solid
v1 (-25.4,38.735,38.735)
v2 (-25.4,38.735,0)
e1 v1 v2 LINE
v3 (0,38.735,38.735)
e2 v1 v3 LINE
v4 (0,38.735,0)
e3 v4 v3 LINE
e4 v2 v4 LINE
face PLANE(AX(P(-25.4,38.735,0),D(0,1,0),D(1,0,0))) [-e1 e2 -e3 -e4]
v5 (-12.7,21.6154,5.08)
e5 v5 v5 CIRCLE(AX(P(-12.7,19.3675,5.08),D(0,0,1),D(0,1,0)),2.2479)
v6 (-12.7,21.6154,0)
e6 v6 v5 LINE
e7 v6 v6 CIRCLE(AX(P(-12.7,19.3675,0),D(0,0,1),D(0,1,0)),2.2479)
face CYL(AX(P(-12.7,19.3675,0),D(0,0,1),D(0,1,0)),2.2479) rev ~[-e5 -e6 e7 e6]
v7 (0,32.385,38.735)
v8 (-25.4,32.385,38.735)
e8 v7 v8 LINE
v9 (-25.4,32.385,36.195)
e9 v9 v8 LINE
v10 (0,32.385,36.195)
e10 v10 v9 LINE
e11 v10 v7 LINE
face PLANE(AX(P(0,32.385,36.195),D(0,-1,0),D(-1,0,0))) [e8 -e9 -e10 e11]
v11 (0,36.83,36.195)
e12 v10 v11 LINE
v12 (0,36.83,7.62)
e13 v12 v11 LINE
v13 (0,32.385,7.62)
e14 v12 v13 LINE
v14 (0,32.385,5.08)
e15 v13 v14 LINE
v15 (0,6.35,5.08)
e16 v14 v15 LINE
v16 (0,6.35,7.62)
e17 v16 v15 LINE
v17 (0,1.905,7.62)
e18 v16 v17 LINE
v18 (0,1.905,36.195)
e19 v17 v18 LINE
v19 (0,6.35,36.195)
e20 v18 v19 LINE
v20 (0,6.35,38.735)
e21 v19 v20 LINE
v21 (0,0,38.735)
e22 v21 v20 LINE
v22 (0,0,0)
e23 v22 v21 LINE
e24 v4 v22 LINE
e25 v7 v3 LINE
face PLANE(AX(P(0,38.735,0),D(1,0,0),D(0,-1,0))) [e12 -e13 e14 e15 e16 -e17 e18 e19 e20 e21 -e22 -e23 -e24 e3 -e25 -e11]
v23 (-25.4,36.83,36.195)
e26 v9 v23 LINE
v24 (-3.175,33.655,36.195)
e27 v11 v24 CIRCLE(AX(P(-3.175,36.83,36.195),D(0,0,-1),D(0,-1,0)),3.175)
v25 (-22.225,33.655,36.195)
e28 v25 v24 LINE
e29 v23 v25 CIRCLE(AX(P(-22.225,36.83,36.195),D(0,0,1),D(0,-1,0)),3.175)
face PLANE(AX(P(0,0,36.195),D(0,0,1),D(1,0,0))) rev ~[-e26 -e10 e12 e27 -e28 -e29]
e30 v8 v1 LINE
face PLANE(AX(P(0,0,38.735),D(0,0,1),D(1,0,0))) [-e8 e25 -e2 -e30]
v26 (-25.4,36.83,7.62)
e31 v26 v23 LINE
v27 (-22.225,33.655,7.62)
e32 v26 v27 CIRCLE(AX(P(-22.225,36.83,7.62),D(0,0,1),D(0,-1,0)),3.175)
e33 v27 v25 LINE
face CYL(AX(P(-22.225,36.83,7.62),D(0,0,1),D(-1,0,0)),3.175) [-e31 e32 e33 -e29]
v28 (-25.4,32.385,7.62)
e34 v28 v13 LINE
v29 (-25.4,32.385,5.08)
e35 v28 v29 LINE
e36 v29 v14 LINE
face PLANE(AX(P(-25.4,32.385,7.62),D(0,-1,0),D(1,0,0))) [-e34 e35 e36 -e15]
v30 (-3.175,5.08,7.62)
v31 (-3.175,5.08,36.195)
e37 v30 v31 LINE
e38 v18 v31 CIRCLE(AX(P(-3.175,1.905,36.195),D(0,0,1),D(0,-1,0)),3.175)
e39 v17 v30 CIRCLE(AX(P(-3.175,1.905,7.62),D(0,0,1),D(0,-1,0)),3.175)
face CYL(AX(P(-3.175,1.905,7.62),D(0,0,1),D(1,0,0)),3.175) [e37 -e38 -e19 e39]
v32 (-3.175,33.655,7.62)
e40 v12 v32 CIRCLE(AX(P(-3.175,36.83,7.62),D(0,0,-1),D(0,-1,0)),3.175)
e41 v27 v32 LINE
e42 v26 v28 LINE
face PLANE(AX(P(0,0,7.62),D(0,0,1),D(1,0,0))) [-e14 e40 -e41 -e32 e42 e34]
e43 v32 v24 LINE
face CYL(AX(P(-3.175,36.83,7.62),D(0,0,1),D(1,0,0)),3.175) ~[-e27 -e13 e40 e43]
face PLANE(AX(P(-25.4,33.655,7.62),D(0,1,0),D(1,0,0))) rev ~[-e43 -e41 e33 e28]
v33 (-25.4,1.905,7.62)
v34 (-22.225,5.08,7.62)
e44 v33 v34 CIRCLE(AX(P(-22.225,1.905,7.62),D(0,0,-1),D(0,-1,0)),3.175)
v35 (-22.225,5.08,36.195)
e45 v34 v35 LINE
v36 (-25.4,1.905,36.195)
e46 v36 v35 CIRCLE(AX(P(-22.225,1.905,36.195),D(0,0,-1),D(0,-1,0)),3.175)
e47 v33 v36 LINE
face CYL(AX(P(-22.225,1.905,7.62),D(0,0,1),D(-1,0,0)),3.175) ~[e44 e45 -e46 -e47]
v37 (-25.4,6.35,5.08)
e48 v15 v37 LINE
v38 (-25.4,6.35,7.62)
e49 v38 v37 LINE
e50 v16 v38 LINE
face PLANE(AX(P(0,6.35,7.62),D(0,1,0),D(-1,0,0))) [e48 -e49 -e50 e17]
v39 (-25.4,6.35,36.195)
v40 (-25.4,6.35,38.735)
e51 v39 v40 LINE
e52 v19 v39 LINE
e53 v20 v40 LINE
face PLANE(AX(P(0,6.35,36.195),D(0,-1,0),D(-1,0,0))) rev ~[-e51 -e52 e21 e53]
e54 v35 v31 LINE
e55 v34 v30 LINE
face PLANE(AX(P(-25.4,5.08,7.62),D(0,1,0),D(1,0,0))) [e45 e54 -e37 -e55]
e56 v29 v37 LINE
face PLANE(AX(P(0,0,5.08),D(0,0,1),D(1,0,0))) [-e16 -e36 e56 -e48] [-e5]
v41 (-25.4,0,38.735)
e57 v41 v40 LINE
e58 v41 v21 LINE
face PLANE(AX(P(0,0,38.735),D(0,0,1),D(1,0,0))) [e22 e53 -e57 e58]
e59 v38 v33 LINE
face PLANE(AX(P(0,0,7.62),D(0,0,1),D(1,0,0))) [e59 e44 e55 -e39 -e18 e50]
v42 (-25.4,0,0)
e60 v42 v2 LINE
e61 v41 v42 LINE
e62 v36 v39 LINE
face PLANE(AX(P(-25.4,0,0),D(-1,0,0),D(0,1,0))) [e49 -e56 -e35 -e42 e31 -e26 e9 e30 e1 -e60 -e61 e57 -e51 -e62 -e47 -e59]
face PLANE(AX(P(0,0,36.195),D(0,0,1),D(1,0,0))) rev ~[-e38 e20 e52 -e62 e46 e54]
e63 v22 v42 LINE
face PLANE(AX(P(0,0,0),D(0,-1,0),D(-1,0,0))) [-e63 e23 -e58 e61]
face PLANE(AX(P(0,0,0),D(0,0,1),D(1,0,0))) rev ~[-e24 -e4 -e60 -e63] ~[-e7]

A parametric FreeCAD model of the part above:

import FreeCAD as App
import Part
import Sketcher

V = App.Vector
Q = App.Units.Quantity


def edges_at(feature, points):
    """Names of the edges that pass closest to the given points."""
    edges = feature.Shape.Edges
    near = lambda p: min(range(len(edges)), key=lambda i: edges[i].distToShape(Part.Vertex(*p))[0])
    return sorted({f"Edge{near(p) + 1}" for p in points})


def add_polygon(sketch, points):
    """Adds a closed chain of lines whose ends are joined by coincident constraints."""
    first, n = sketch.GeometryCount, len(points)
    for a, b in zip(points, points[1:] + points[:1]):
        sketch.addGeometry(Part.LineSegment(App.Vector(*a, 0), App.Vector(*b, 0)), False)
    for i in range(n):
        sketch.addConstraint(Sketcher.Constraint("Coincident", first + i, 2, first + (i + 1) % n, 1))

doc = App.newDocument("Part")
body = doc.addObject("PartDesign::Body", "Body")

# Sketch on XY plane
sketch1 = body.newObject("Sketcher::SketchObject", "Sketch")
sketch1.AttachmentSupport = (doc.getObject("XY_Plane"), [""])
sketch1.MapMode = "FlatFace"
add_polygon(sketch1, [(-25, 0), (0, 0), (0, 39), (-25, 39)])  # lines 0-3
sketch1.addConstraint([
    Sketcher.Constraint("Horizontal", 0),
    Sketcher.Constraint("Vertical", 1),
    Sketcher.Constraint("Horizontal", 2),
    Sketcher.Constraint("Vertical", 3),
    Sketcher.Constraint("Coincident", 0, 2, -1, 1),
    Sketcher.Constraint("DistanceX", 0, 1, 0, 2, Q("1 in")),
    Sketcher.Constraint("DistanceY", 1, 1, 1, 2, Q("1.525 in")),
])
pad1 = body.newObject("PartDesign::Pad", "Pad")
pad1.Profile = sketch1
pad1.Length = Q("0.3 in")

# Sketch on XY plane
sketch2 = body.newObject("Sketcher::SketchObject", "Sketch001")
sketch2.AttachmentSupport = (doc.getObject("XY_Plane"), [""])
sketch2.MapMode = "FlatFace"
sketch2.AttachmentOffset = App.Placement(V(0, 0, 0.3 * 25.4), App.Rotation())
add_polygon(sketch2, [(-25, 5), (-25, 0), (0, 0), (0, 5)])  # lines 0-3
add_polygon(sketch2, [(-25, 39), (-25, 34), (0, 34), (0, 39)])  # lines 4-7
sketch2.addConstraint([
    Sketcher.Constraint("Vertical", 0),
    Sketcher.Constraint("Horizontal", 1),
    Sketcher.Constraint("Vertical", 2),
    Sketcher.Constraint("Horizontal", 3),
    Sketcher.Constraint("Vertical", 4),
    Sketcher.Constraint("Horizontal", 5),
    Sketcher.Constraint("Vertical", 6),
    Sketcher.Constraint("Horizontal", 7),
    Sketcher.Constraint("Coincident", 1, 2, -1, 1),
    Sketcher.Constraint("PointOnObject", 5, 2, -2),
    Sketcher.Constraint("Vertical", 3, 2, 4, 2),
    Sketcher.Constraint("Equal", 2, 4),
    Sketcher.Constraint("DistanceY", 0, 2, 0, 1, Q("0.2 in")),
    Sketcher.Constraint("DistanceX", 1, 1, 1, 2, Q("1 in")),
    Sketcher.Constraint("DistanceY", -1, 1, 4, 2, Q("1.325 in")),
])
pad2 = body.newObject("PartDesign::Pad", "Pad001")
pad2.Profile = sketch2
pad2.Length = Q("1.125 in")

# Sketch on XY plane
sketch3 = body.newObject("Sketcher::SketchObject", "Sketch002")
sketch3.AttachmentSupport = (doc.getObject("XY_Plane"), [""])
sketch3.MapMode = "FlatFace"
sketch3.AttachmentOffset = App.Placement(V(0, 0, 1.425 * 25.4), App.Rotation())
add_polygon(sketch3, [(-25, 32), (0, 32), (0, 39), (-25, 39)])  # lines 0-3
add_polygon(sketch3, [(-25, 6), (-25, 0), (0, 0), (0, 6)])  # lines 4-7
sketch3.addConstraint([
    Sketcher.Constraint("Horizontal", 0),
    Sketcher.Constraint("Vertical", 1),
    Sketcher.Constraint("Horizontal", 2),
    Sketcher.Constraint("Vertical", 3),
    Sketcher.Constraint("Vertical", 4),
    Sketcher.Constraint("Horizontal", 5),
    Sketcher.Constraint("Vertical", 6),
    Sketcher.Constraint("Horizontal", 7),
    Sketcher.Constraint("Coincident", 5, 2, -1, 1),
    Sketcher.Constraint("PointOnObject", 0, 2, -2),
    Sketcher.Constraint("Vertical", 3, 2, 4, 2),
    Sketcher.Constraint("Equal", 3, 4),
    Sketcher.Constraint("DistanceX", 0, 1, 0, 2, Q("1 in")),
    Sketcher.Constraint("DistanceY", 1, 1, 1, 2, Q("0.25 in")),
    Sketcher.Constraint("DistanceY", -1, 1, 0, 2, Q("1.275 in")),
])
pad3 = body.newObject("PartDesign::Pad", "Pad002")
pad3.Profile = sketch3
pad3.Length = Q("0.1 in")

# Sketch on XY plane
sketch4 = body.newObject("Sketcher::SketchObject", "Sketch003")
sketch4.AttachmentSupport = (doc.getObject("XY_Plane"), [""])
sketch4.MapMode = "FlatFace"
sketch4.AttachmentOffset = App.Placement(V(0, 0, 0.3 * 25.4), App.Rotation())
add_polygon(sketch4, [(0, 32), (-25, 32), (-25, 6), (0, 6)])  # lines 0-3
sketch4.addConstraint([
    Sketcher.Constraint("Horizontal", 0),
    Sketcher.Constraint("Vertical", 1),
    Sketcher.Constraint("Horizontal", 2),
    Sketcher.Constraint("Vertical", 3),
    Sketcher.Constraint("PointOnObject", 2, 2, -2),
    Sketcher.Constraint("DistanceX", 0, 2, 0, 1, Q("1 in")),
    Sketcher.Constraint("DistanceY", 1, 2, 1, 1, Q("1.025 in")),
    Sketcher.Constraint("DistanceY", -1, 1, 1, 2, Q("0.25 in")),
])
pocket1 = body.newObject("PartDesign::Pocket", "Pocket")
pocket1.Profile = sketch4
pocket1.Length = Q("0.1 in")
doc.recompute()

fillet = body.newObject("PartDesign::Fillet", "Fillet")
fillet.Base = (pocket1, edges_at(pocket1, [
    (0, 33.655, 21.907),
    (-25.4, 33.655, 21.907),
    (-25.4, 5.08, 21.907),
    (0, 5.08, 21.907),
]))
fillet.Radius = Q("0.125 in")

# Sketch on XY plane
sketch5 = body.newObject("Sketcher::SketchObject", "Sketch004")
sketch5.AttachmentSupport = (doc.getObject("XY_Plane"), [""])
sketch5.MapMode = "FlatFace"
sketch5.addGeometry(Part.Circle(V(-12.7, 19.4, 0), V(0, 0, 1), 2.2), False)
sketch5.addConstraint([
    Sketcher.Constraint("Diameter", 0, Q("0.177 in")),
    Sketcher.Constraint("DistanceX", 0, 3, -1, 1, Q("0.5 in")),
    Sketcher.Constraint("DistanceY", -1, 1, 0, 3, Q("0.7625 in")),
])
doc.recompute()
hole = body.newObject("PartDesign::Hole", "Hole")
hole.Profile = sketch5
hole.ThreadType = "None"
hole.Diameter = Q("0.177 in")
hole.DepthType = "ThroughAll"
hole.Reversed = True

doc.recompute()
